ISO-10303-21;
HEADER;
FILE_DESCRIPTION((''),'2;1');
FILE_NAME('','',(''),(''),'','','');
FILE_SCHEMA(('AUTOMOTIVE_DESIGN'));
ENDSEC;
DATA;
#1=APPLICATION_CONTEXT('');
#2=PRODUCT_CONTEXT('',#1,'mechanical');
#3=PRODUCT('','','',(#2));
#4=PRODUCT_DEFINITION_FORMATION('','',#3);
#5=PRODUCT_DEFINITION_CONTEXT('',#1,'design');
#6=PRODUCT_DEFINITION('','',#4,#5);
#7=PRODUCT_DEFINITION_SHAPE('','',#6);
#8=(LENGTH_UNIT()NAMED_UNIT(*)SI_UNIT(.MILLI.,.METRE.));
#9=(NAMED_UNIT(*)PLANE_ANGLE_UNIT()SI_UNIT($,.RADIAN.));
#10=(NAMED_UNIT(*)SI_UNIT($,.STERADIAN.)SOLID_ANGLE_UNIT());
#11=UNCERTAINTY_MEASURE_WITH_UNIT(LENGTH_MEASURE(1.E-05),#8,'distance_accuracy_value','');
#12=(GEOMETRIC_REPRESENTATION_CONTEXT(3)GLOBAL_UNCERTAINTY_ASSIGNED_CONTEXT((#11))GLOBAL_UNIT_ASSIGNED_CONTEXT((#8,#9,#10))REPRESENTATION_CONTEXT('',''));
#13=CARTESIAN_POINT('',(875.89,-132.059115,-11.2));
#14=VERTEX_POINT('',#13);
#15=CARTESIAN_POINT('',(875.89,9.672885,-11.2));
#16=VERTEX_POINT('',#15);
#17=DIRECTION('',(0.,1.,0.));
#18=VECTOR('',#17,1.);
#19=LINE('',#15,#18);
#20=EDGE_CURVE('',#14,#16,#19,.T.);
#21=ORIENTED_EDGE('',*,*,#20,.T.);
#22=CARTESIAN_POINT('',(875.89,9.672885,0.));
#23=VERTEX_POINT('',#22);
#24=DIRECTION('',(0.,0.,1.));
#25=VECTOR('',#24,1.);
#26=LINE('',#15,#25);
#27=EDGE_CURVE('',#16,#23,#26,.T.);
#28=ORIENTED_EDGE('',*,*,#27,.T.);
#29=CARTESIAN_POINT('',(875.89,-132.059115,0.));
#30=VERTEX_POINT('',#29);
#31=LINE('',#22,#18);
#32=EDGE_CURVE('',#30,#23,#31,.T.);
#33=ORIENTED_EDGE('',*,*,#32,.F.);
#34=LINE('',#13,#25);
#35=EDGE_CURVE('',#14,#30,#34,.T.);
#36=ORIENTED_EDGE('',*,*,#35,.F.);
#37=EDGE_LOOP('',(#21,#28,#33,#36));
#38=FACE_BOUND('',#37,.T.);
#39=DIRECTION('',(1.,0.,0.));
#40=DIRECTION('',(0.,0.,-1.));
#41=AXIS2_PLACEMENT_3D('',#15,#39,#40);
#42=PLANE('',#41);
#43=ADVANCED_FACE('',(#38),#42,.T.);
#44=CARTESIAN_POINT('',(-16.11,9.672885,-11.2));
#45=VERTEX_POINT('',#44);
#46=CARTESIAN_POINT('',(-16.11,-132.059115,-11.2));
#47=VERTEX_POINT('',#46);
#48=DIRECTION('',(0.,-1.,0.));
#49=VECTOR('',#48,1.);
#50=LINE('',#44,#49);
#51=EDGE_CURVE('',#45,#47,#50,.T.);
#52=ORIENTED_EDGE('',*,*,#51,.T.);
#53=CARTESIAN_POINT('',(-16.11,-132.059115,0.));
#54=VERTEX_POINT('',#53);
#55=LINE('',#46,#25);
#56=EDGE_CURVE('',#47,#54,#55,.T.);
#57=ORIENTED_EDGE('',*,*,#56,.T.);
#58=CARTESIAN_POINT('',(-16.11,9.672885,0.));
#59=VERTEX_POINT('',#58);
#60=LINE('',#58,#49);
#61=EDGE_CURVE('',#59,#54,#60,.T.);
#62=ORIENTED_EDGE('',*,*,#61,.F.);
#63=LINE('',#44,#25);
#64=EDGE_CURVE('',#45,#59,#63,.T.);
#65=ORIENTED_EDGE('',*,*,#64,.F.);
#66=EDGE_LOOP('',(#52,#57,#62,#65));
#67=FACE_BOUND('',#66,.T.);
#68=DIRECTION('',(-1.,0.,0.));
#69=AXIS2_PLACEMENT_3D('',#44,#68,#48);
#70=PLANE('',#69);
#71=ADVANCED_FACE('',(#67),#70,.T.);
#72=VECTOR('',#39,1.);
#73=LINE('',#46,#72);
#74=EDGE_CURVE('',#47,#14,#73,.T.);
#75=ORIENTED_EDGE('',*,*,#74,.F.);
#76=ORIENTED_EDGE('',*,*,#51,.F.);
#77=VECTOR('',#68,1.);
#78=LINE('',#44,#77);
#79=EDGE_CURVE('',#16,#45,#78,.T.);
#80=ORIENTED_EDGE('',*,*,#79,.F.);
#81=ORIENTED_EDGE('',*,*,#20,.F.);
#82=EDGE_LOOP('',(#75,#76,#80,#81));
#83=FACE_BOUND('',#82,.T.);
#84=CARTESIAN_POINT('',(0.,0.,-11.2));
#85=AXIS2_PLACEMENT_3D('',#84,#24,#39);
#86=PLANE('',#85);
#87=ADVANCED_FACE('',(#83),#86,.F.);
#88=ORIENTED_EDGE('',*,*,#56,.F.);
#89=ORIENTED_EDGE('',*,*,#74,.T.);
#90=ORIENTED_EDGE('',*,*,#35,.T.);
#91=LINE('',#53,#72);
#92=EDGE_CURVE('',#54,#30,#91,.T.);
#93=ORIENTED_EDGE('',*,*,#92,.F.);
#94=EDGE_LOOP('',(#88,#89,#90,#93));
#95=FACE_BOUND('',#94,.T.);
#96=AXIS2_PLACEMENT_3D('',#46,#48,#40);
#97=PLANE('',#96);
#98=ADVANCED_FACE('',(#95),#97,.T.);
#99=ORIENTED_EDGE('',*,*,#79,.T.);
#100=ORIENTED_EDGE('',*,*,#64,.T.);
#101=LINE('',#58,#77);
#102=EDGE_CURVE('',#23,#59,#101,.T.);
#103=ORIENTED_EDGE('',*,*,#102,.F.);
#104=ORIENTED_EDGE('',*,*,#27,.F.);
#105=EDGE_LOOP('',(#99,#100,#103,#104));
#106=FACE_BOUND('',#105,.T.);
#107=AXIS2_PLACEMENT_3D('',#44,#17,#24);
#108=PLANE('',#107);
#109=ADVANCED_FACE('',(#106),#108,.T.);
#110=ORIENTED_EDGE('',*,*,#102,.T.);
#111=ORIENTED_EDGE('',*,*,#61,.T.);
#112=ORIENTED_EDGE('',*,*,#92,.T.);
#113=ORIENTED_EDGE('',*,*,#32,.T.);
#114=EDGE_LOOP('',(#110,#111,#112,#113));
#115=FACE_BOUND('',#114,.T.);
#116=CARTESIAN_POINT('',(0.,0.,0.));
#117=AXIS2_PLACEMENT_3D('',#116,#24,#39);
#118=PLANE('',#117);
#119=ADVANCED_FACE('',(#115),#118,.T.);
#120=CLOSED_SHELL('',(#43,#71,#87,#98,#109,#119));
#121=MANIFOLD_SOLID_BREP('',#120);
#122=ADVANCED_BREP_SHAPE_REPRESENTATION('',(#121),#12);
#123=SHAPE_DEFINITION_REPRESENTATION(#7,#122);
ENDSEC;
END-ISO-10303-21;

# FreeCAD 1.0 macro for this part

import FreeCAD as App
import Part
import Sketcher
Q = App.Units.Quantity

doc = App.newDocument("Part")
body = doc.addObject("PartDesign::Body", "Body")

sketch1 = doc.addObject("Sketcher::SketchObject", "Sketch")
body.addObject(sketch1)
sketch1.AttachmentSupport = (doc.XY_Plane, [""])
sketch1.MapMode = "FlatFace"
sketch1.addGeometry([
    Part.LineSegment(App.Vector(-16, 10, 0), App.Vector(-16, -132, 0)),
    Part.LineSegment(App.Vector(-16, -132, 0), App.Vector(876, -132, 0)),
    Part.LineSegment(App.Vector(876, -132, 0), App.Vector(876, 10, 0)),
    Part.LineSegment(App.Vector(876, 10, 0), App.Vector(-16, 10, 0)),
], False)
sketch1.addConstraint([
    Sketcher.Constraint("Coincident", 0, 2, 1, 1),
    Sketcher.Constraint("Coincident", 1, 2, 2, 1),
    Sketcher.Constraint("Coincident", 2, 2, 3, 1),
    Sketcher.Constraint("Coincident", 3, 2, 0, 1),
    Sketcher.Constraint("Vertical", 0),
    Sketcher.Constraint("Horizontal", 1),
    Sketcher.Constraint("Vertical", 2),
    Sketcher.Constraint("Horizontal", 3),
    Sketcher.Constraint("DistanceX", 1, 1, 1, 2, Q("892 mm")),
    Sketcher.Constraint("DistanceY", 0, 2, 0, 1, Q("141.732 mm")),
    Sketcher.Constraint("DistanceX", 0, 2, -1, 1, Q("16.11 mm")),
    Sketcher.Constraint("DistanceY", 0, 2, -1, 1, Q("132.059115 mm")),
])
pad1 = doc.addObject("PartDesign::Pad", "Pad")
body.addObject(pad1)
pad1.Profile = sketch1
pad1.Length = 11.2
pad1.Reversed = True

doc.recompute()
